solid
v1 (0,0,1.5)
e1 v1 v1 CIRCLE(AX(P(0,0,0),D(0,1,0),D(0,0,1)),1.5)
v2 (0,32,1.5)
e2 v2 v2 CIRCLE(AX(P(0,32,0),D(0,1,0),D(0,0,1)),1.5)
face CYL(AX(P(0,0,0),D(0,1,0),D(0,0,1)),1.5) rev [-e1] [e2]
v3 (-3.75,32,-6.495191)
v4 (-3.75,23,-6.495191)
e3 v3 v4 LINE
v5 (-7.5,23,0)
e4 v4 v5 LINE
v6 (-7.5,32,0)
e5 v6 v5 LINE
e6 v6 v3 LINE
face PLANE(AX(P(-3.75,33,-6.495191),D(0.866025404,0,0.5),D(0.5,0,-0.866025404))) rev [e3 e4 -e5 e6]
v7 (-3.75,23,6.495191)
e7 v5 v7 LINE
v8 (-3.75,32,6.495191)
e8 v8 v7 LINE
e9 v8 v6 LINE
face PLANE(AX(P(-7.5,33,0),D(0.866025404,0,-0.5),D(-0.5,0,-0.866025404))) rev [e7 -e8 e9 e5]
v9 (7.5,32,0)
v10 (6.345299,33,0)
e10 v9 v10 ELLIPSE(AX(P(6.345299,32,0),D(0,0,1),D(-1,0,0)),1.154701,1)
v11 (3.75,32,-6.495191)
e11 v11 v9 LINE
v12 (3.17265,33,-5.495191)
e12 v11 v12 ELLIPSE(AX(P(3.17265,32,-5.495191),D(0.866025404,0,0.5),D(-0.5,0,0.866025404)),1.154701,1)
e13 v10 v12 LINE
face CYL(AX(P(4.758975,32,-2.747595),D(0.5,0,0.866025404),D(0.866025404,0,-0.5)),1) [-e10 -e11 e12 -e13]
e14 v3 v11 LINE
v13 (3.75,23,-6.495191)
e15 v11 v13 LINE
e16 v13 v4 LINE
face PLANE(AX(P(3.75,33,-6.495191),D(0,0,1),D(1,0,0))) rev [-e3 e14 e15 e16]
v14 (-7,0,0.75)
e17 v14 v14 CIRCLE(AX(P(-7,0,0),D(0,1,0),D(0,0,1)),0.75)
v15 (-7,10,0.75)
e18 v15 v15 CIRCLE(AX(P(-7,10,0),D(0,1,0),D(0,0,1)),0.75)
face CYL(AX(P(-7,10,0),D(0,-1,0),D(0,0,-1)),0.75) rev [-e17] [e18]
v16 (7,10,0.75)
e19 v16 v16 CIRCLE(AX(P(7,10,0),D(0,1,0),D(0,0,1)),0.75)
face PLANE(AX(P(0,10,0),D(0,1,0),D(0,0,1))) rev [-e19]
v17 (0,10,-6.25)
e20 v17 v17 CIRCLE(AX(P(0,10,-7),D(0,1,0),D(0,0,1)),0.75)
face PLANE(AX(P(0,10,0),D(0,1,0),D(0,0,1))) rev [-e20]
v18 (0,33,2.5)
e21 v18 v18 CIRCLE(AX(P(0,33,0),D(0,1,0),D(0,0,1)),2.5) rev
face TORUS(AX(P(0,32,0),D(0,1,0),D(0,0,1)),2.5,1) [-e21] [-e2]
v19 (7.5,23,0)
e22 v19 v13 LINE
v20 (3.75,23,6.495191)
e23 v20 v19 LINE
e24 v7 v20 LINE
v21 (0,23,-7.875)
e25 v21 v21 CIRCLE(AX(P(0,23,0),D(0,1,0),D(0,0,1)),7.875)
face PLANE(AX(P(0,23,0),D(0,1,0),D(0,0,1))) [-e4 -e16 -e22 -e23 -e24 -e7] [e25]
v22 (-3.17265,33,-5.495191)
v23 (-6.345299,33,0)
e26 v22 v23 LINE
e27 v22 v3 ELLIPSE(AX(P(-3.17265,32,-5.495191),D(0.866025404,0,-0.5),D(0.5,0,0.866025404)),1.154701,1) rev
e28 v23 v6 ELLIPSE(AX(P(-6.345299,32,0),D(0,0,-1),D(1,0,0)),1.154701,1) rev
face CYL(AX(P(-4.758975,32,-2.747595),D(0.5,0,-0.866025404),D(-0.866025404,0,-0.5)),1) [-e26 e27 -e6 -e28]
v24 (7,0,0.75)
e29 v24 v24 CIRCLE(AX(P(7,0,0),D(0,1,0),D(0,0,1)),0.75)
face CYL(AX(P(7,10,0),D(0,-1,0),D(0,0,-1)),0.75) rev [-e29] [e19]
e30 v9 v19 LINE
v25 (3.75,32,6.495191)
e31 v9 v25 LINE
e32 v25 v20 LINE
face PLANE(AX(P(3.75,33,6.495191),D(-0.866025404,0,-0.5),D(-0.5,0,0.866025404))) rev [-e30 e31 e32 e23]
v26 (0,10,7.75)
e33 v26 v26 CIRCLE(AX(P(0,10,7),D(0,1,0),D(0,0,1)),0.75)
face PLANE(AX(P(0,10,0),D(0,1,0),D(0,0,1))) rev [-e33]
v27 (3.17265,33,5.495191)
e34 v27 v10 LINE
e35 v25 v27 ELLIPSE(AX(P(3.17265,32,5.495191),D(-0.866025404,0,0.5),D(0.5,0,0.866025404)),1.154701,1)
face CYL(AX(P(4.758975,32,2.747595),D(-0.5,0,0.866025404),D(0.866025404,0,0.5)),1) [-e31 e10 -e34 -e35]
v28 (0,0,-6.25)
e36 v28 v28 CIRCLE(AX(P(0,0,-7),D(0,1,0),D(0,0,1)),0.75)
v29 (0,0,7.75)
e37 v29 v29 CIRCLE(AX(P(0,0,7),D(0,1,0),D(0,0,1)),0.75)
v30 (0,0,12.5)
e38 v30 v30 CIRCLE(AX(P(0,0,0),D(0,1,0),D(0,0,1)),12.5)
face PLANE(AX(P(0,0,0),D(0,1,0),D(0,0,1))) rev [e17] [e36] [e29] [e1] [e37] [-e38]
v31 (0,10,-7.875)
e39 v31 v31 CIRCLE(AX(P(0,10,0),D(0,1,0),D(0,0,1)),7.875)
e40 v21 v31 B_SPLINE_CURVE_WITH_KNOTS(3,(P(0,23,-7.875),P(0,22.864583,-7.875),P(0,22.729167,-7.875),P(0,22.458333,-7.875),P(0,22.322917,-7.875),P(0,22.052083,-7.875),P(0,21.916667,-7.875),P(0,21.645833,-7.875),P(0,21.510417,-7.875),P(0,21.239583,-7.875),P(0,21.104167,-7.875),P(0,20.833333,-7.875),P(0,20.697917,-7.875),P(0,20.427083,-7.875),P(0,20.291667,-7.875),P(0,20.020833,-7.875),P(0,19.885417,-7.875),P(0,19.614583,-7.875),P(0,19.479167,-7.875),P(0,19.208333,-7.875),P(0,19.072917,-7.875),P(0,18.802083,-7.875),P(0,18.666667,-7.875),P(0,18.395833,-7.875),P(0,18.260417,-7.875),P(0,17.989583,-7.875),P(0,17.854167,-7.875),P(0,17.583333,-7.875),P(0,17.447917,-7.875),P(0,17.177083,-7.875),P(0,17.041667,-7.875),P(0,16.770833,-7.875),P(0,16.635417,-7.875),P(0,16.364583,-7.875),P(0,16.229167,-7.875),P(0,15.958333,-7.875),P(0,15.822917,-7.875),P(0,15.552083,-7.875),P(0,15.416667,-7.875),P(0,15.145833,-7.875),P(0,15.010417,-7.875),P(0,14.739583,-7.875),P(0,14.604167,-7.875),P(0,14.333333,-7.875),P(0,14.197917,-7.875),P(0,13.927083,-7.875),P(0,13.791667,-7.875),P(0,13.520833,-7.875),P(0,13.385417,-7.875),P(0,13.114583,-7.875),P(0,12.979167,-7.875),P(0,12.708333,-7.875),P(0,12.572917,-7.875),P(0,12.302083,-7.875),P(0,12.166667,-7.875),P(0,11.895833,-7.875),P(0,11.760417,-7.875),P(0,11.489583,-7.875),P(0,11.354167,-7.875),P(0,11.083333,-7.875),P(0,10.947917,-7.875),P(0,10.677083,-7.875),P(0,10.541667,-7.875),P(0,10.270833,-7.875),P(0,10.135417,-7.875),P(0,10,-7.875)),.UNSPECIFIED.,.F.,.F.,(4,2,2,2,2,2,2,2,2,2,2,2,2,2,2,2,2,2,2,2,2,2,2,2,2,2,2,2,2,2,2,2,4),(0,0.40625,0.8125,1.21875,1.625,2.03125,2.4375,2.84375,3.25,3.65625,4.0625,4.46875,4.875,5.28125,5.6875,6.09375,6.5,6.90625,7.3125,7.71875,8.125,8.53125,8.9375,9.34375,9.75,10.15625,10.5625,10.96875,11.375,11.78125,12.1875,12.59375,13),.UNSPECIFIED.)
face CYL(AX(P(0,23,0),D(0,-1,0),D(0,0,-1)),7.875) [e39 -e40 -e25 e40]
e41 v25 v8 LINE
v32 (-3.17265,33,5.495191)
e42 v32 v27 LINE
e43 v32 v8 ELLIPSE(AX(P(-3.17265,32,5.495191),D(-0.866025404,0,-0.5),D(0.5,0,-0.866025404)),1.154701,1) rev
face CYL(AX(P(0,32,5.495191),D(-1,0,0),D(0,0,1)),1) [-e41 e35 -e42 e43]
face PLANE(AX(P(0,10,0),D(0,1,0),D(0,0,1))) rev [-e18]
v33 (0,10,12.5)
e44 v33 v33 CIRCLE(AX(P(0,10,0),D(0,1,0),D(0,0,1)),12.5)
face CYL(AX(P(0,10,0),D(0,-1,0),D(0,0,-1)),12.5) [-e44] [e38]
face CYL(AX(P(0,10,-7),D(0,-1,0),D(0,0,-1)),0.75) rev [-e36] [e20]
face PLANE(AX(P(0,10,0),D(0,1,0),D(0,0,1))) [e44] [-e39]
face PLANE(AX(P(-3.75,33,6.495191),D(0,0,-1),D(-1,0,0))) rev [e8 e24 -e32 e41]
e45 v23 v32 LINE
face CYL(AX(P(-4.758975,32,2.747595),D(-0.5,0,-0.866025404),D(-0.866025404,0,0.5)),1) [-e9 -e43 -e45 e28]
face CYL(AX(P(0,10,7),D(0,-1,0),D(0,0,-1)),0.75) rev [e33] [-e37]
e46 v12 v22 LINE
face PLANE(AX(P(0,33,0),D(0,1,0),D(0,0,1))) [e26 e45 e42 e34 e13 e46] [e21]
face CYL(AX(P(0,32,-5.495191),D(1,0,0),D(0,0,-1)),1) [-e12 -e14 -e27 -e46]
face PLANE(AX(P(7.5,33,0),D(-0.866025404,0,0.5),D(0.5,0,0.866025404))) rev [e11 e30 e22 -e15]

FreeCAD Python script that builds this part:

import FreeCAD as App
import Part
import Sketcher

V = App.Vector
Q = App.Units.Quantity


def edges_at(feature, points):
    """Names of the edges that pass closest to the given points."""
    edges = feature.Shape.Edges
    near = lambda p: min(range(len(edges)), key=lambda i: edges[i].distToShape(Part.Vertex(*p))[0])
    return sorted({f"Edge{near(p) + 1}" for p in points})


def add_polygon(sketch, points):
    """Adds a closed chain of lines whose ends are joined by coincident constraints."""
    first, n = sketch.GeometryCount, len(points)
    for a, b in zip(points, points[1:] + points[:1]):
        sketch.addGeometry(Part.LineSegment(App.Vector(*a, 0), App.Vector(*b, 0)), False)
    for i in range(n):
        sketch.addConstraint(Sketcher.Constraint("Coincident", first + i, 2, first + (i + 1) % n, 1))

doc = App.newDocument("Part")
body = doc.addObject("PartDesign::Body", "Body")

# Sketch on XZ plane
sketch1 = body.newObject("Sketcher::SketchObject", "Sketch")
sketch1.AttachmentSupport = (doc.getObject("XZ_Plane"), [""])
sketch1.MapMode = "FlatFace"
sketch1.addGeometry(Part.Circle(V(0, 0, 0), V(0, 0, 1), 12.5), False)
sketch1.addGeometry(Part.Circle(V(0, -7, 0), V(0, 0, 1), 0.8), False)
sketch1.addGeometry(Part.Circle(V(-7, 0, 0), V(0, 0, 1), 0.8), False)
sketch1.addGeometry(Part.Circle(V(7, 0, 0), V(0, 0, 1), 0.8), False)
sketch1.addGeometry(Part.Circle(V(0, 7, 0), V(0, 0, 1), 0.8), False)
sketch1.addConstraint(Sketcher.Constraint("Coincident", 0, 3, -1, 1))
sketch1.addConstraint(Sketcher.Constraint("Equal", 1, 2))
sketch1.addConstraint(Sketcher.Constraint("Equal", 2, 3))
sketch1.addConstraint(Sketcher.Constraint("Equal", 3, 4))
sketch1.addConstraint(Sketcher.Constraint("Symmetric", 2, 3, 3, 3, -1, 1))
sketch1.addConstraint(Sketcher.Constraint("Symmetric", 1, 3, 4, 3, -1, 1))
sketch1.addConstraint(Sketcher.Constraint("PointOnObject", 1, 3, -2))
sketch1.addConstraint(Sketcher.Constraint("PointOnObject", 2, 3, -1))
sketch1.addConstraint(Sketcher.Constraint("Diameter", 0, 25.0))
sketch1.addConstraint(Sketcher.Constraint("Diameter", 1, 1.5))
sketch1.addConstraint(Sketcher.Constraint("DistanceY", 1, 3, -1, 1, 7.0))
sketch1.addConstraint(Sketcher.Constraint("DistanceX", 2, 3, -1, 1, 7.0))
pad1 = body.newObject("PartDesign::Pad", "Pad")
pad1.Profile = sketch1
pad1.Length = 10
pad1.Reversed = True

# Sketch on XZ plane
sketch2 = body.newObject("Sketcher::SketchObject", "Sketch001")
sketch2.AttachmentSupport = (doc.getObject("XZ_Plane"), [""])
sketch2.MapMode = "FlatFace"
sketch2.AttachmentOffset = App.Placement(V(0, 0, -10), App.Rotation())
sketch2.addGeometry(Part.Circle(V(0, 0, 0), V(0, 0, 1), 8), False)
sketch2.addConstraint(Sketcher.Constraint("Coincident", 0, 3, -1, 1))
sketch2.addConstraint(Sketcher.Constraint("Diameter", 0, 15.75))
pad2 = body.newObject("PartDesign::Pad", "Pad001")
pad2.Profile = sketch2
pad2.Length = 13
pad2.Reversed = True

# Sketch on XZ plane
sketch3 = body.newObject("Sketcher::SketchObject", "Sketch002")
sketch3.AttachmentSupport = (doc.getObject("XZ_Plane"), [""])
sketch3.MapMode = "FlatFace"
sketch3.AttachmentOffset = App.Placement(V(0, 0, -23), App.Rotation())
add_polygon(sketch3, [(8, 0), (4, -6), (-4, -6), (-8, 0), (-4, 6), (4, 6)])  # lines 0-5
sketch3.addConstraint(Sketcher.Constraint("Horizontal", 1))
sketch3.addConstraint(Sketcher.Constraint("Horizontal", 4))
sketch3.addConstraint(Sketcher.Constraint("Symmetric", 0, 2, 3, 2, -1, 1))
sketch3.addConstraint(Sketcher.Constraint("Symmetric", 2, 2, 5, 2, -1, 1))
sketch3.addConstraint(Sketcher.Constraint("PointOnObject", 2, 2, -1))
sketch3.addConstraint(Sketcher.Constraint("Parallel", 2, 5))
sketch3.addConstraint(Sketcher.Constraint("Vertical", 1, 2, 3, 2))
sketch3.addConstraint(Sketcher.Constraint("Angle", 0, Q("-120 deg")))
sketch3.addConstraint(Sketcher.Constraint("DistanceX", 1, 2, 1, 1, 7.5))
sketch3.addConstraint(Sketcher.Constraint("DistanceX", 2, 2, 5, 2, 15.0))
pad3 = body.newObject("PartDesign::Pad", "Pad002")
pad3.Profile = sketch3
pad3.Length = 10
pad3.Reversed = True

# Sketch on XZ plane
sketch4 = body.newObject("Sketcher::SketchObject", "Sketch003")
sketch4.AttachmentSupport = (doc.getObject("XZ_Plane"), [""])
sketch4.MapMode = "FlatFace"
sketch4.AttachmentOffset = App.Placement(V(0, 0, -33), App.Rotation())
sketch4.addGeometry(Part.Circle(V(0, 0, 0), V(0, 0, 1), 1.5), False)
sketch4.addConstraint(Sketcher.Constraint("Coincident", 0, 3, -1, 1))
sketch4.addConstraint(Sketcher.Constraint("Diameter", 0, 3.0))
pocket1 = body.newObject("PartDesign::Pocket", "Pocket")
pocket1.Profile = sketch4
pocket1.Type = "ThroughAll"
pocket1.Reversed = True
doc.recompute()

fillet = body.newObject("PartDesign::Fillet", "Fillet")
fillet.Base = (pocket1, edges_at(pocket1, [
    (5.625, 33, 3.248),
    (5.625, 33, -3.248),
    (0, 33, -6.495),
    (-5.625, 33, -3.248),
    (-5.625, 33, 3.248),
    (0, 33, 6.495),
    (0, 33, -1.5),
]))
fillet.Radius = 1

doc.recompute()
